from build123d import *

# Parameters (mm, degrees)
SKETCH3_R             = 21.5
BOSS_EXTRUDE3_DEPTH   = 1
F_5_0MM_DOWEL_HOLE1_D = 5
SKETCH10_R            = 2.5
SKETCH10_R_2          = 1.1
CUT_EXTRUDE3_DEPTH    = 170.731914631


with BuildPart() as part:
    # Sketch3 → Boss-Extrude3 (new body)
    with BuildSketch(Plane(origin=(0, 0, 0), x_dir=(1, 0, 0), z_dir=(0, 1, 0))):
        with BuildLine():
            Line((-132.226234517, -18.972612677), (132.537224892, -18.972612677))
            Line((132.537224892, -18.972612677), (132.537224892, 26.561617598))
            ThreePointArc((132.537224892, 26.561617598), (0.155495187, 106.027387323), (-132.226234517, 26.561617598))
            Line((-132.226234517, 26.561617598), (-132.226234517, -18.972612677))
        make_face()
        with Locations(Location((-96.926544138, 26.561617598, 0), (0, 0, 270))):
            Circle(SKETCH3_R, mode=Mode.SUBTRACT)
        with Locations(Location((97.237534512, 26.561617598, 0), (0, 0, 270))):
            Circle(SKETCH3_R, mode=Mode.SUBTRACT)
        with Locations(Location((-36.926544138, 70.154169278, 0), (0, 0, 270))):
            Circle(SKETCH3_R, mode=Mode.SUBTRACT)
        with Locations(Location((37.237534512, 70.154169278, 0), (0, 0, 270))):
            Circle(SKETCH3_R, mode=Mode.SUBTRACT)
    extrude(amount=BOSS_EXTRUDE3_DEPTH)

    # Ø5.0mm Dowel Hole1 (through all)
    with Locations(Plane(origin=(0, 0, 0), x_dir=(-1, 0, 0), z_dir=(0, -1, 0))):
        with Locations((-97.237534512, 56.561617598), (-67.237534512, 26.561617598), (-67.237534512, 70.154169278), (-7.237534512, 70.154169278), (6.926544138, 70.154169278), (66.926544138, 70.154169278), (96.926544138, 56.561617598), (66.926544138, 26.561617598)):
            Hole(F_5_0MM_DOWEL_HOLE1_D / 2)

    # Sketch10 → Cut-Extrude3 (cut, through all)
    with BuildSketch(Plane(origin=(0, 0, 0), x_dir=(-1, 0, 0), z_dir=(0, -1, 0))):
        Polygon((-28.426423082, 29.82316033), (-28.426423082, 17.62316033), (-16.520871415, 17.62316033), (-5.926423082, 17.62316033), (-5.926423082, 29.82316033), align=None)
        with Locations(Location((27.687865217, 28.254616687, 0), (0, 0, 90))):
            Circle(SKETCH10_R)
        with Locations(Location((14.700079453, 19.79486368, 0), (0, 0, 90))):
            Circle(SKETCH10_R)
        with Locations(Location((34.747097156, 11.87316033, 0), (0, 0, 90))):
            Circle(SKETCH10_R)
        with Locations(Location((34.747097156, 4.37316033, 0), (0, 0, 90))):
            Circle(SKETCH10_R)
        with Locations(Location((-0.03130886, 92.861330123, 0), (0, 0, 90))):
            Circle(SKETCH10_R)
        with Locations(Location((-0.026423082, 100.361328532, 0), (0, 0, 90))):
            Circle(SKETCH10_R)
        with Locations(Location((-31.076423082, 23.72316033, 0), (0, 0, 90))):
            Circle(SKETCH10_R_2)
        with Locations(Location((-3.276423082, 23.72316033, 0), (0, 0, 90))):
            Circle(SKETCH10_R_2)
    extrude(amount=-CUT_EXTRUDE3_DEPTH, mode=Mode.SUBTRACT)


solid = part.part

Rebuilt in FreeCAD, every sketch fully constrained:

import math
import FreeCAD as App
import Part
import Sketcher
Q = App.Units.Quantity

doc = App.newDocument("Part")
params = doc.addObject("Spreadsheet::Sheet", "Params")
for row, (alias, value) in enumerate([
    ("sketch1_diameter", "43 mm"),
    ("sketch1_radius", "150 mm"),
    ("pad1_length", "1 mm"),
    ("sketch2_diameter", "5 mm"),
    ("hole_diameter", "5 mm"),
    ("sketch3_diameter", "5 mm"),
    ("sketch3_diameter2", "2.2 mm"),
    ("sketch3_width", "22.5 mm"),
    ("sketch3_height", "12.2 mm"),
], start=1):
    params.set(f"A{row}", alias)
    params.set(f"B{row}", "=" + value)
    params.setAlias(f"B{row}", alias)

body = doc.addObject("PartDesign::Body", "Body")

# Sketch on XZ plane
sketch1 = body.newObject("Sketcher::SketchObject", "Sketch")
sketch1.AttachmentSupport = (doc.getObject("XZ_Plane"), [""])
sketch1.MapMode = "FlatFace"
sketch1.addGeometry(Part.LineSegment(App.Vector(-132, 19, 0), App.Vector(133, 19, 0)), False)
sketch1.addGeometry(Part.LineSegment(App.Vector(133, 19, 0), App.Vector(133, -27, 0)), False)
sketch1.addGeometry(Part.ArcOfCircle(Part.Circle(App.Vector(0, 44, 0), App.Vector(0, 0, 1), 150), math.radians(-152), math.radians(-28)), False)
sketch1.addGeometry(Part.LineSegment(App.Vector(-132, -27, 0), App.Vector(-132, 19, 0)), False)
sketch1.addGeometry(Part.Circle(App.Vector(-97, -27, 0), App.Vector(0, 0, 1), 22), False)
sketch1.addGeometry(Part.Circle(App.Vector(97, -27, 0), App.Vector(0, 0, 1), 22), False)
sketch1.addGeometry(Part.Circle(App.Vector(-37, -70, 0), App.Vector(0, 0, 1), 22), False)
sketch1.addGeometry(Part.Circle(App.Vector(37, -70, 0), App.Vector(0, 0, 1), 22), False)
sketch1.addConstraint(Sketcher.Constraint("Coincident", 0, 2, 1, 1))
sketch1.addConstraint(Sketcher.Constraint("Coincident", 1, 2, 2, 2))
sketch1.addConstraint(Sketcher.Constraint("Coincident", 2, 1, 3, 1))
sketch1.addConstraint(Sketcher.Constraint("Coincident", 3, 2, 0, 1))
sketch1.addConstraint(Sketcher.Constraint("Horizontal", 0))
sketch1.addConstraint(Sketcher.Constraint("Vertical", 1))
sketch1.addConstraint(Sketcher.Constraint("Vertical", 3))
sketch1.addConstraint(Sketcher.Constraint("Equal", 4, 5))
sketch1.addConstraint(Sketcher.Constraint("Equal", 5, 6))
sketch1.addConstraint(Sketcher.Constraint("Equal", 6, 7))
sketch1.addConstraint(Sketcher.Constraint("Horizontal", 4, 3, 5, 3))
sketch1.addConstraint(Sketcher.Constraint("Horizontal", 6, 3, 7, 3))
sketch1.addConstraint(Sketcher.Constraint("Horizontal", 5, 3, 1, 2))
sketch1.addConstraint(Sketcher.Constraint("Horizontal", 1, 2, 2, 1))
sketch1.addConstraint(Sketcher.Constraint("Diameter", 4, Q("43 mm")))
sketch1.addConstraint(Sketcher.Constraint("Radius", 2, Q("150 mm")))
sketch1.addConstraint(Sketcher.Constraint("DistanceX", 4, 3, 6, 3, Q("60 mm")))
sketch1.addConstraint(Sketcher.Constraint("DistanceX", 7, 3, 5, 3, Q("60 mm")))
sketch1.addConstraint(Sketcher.Constraint("DistanceY", 0, 2, 2, 3, Q("25 mm")))
sketch1.addConstraint(Sketcher.Constraint("DistanceX", 0, 1, 0, 2, Q("264.763459 mm")))
sketch1.addConstraint(Sketcher.Constraint("DistanceY", 6, 3, -1, 1, Q("70.154169 mm")))
sketch1.addConstraint(Sketcher.Constraint("DistanceX", 4, 3, 2, 3, Q("97.082039 mm")))
sketch1.addConstraint(Sketcher.Constraint("DistanceX", 2, 3, 5, 3, Q("97.082039 mm")))
sketch1.addConstraint(Sketcher.Constraint("DistanceY", 6, 3, 4, 3, Q("43.592552 mm")))
sketch1.addConstraint(Sketcher.Constraint("DistanceX", -1, 1, 2, 3, Q("0.155495 mm")))
sketch1.setExpression("Constraints[14]", "Params.sketch1_diameter")
sketch1.setExpression("Constraints[15]", "Params.sketch1_radius")
pad1 = body.newObject("PartDesign::Pad", "Pad")
pad1.Profile = sketch1
pad1.setExpression("Length", "Params.pad1_length")
pad1.Reversed = True

# Sketch on XZ plane
sketch2 = body.newObject("Sketcher::SketchObject", "Sketch001")
sketch2.AttachmentSupport = (doc.getObject("XZ_Plane"), [""])
sketch2.MapMode = "FlatFace"
sketch2.addGeometry(Part.Circle(App.Vector(97.2, -56.6, 0), App.Vector(0, 0, 1), 2.5), False)
sketch2.addGeometry(Part.Circle(App.Vector(67.2, -26.6, 0), App.Vector(0, 0, 1), 2.5), False)
sketch2.addGeometry(Part.Circle(App.Vector(67.2, -70.2, 0), App.Vector(0, 0, 1), 2.5), False)
sketch2.addGeometry(Part.Circle(App.Vector(7.2, -70.2, 0), App.Vector(0, 0, 1), 2.5), False)
sketch2.addGeometry(Part.Circle(App.Vector(-6.9, -70.2, 0), App.Vector(0, 0, 1), 2.5), False)
sketch2.addGeometry(Part.Circle(App.Vector(-66.9, -70.2, 0), App.Vector(0, 0, 1), 2.5), False)
sketch2.addGeometry(Part.Circle(App.Vector(-96.9, -56.6, 0), App.Vector(0, 0, 1), 2.5), False)
sketch2.addGeometry(Part.Circle(App.Vector(-66.9, -26.6, 0), App.Vector(0, 0, 1), 2.5), False)
sketch2.addConstraint(Sketcher.Constraint("Equal", 0, 1))
sketch2.addConstraint(Sketcher.Constraint("Equal", 1, 2))
sketch2.addConstraint(Sketcher.Constraint("Equal", 2, 3))
sketch2.addConstraint(Sketcher.Constraint("Equal", 3, 4))
sketch2.addConstraint(Sketcher.Constraint("Equal", 4, 5))
sketch2.addConstraint(Sketcher.Constraint("Equal", 5, 6))
sketch2.addConstraint(Sketcher.Constraint("Equal", 6, 7))
sketch2.addConstraint(Sketcher.Constraint("Horizontal", 2, 3, 3, 3))
sketch2.addConstraint(Sketcher.Constraint("Horizontal", 3, 3, 4, 3))
sketch2.addConstraint(Sketcher.Constraint("Horizontal", 4, 3, 5, 3))
sketch2.addConstraint(Sketcher.Constraint("Horizontal", 0, 3, 6, 3))
sketch2.addConstraint(Sketcher.Constraint("Horizontal", 1, 3, 7, 3))
sketch2.addConstraint(Sketcher.Constraint("Vertical", 1, 3, 2, 3))
sketch2.addConstraint(Sketcher.Constraint("Vertical", 5, 3, 7, 3))
sketch2.addConstraint(Sketcher.Constraint("Diameter", 0, Q("5 mm")))
sketch2.addConstraint(Sketcher.Constraint("DistanceX", 1, 3, 0, 3, Q("30 mm")))
sketch2.addConstraint(Sketcher.Constraint("DistanceY", 0, 3, 1, 3, Q("30 mm")))
sketch2.addConstraint(Sketcher.Constraint("DistanceX", 3, 3, 2, 3, Q("60 mm")))
sketch2.addConstraint(Sketcher.Constraint("DistanceX", 5, 3, 4, 3, Q("60 mm")))
sketch2.addConstraint(Sketcher.Constraint("DistanceX", 6, 3, 5, 3, Q("30 mm")))
sketch2.addConstraint(Sketcher.Constraint("DistanceY", 2, 3, -1, 1, Q("70.154169 mm")))
sketch2.addConstraint(Sketcher.Constraint("DistanceY", 2, 3, 0, 3, Q("13.592552 mm")))
sketch2.addConstraint(Sketcher.Constraint("DistanceX", 4, 3, 3, 3, Q("14.164079 mm")))
sketch2.addConstraint(Sketcher.Constraint("DistanceX", -1, 1, 0, 3, Q("97.237535 mm")))
sketch2.setExpression("Constraints[14]", "Params.sketch2_diameter")
doc.recompute()
hole = body.newObject("PartDesign::Hole", "Hole")
hole.Profile = sketch2
hole.ThreadType = "None"
hole.setExpression("Diameter", "Params.hole_diameter")
hole.DepthType = "ThroughAll"

# Sketch on XZ plane
sketch3 = body.newObject("Sketcher::SketchObject", "Sketch002")
sketch3.AttachmentSupport = (doc.getObject("XZ_Plane"), [""])
sketch3.MapMode = "FlatFace"
sketch3.addGeometry(Part.LineSegment(App.Vector(28.4, -29.8, 0), App.Vector(28.4, -17.6, 0)), False)
sketch3.addGeometry(Part.LineSegment(App.Vector(28.4, -17.6, 0), App.Vector(5.9, -17.6, 0)), False)
sketch3.addGeometry(Part.LineSegment(App.Vector(5.9, -17.6, 0), App.Vector(5.9, -29.8, 0)), False)
sketch3.addGeometry(Part.LineSegment(App.Vector(5.9, -29.8, 0), App.Vector(28.4, -29.8, 0)), False)
sketch3.addGeometry(Part.Circle(App.Vector(-27.7, -28.3, 0), App.Vector(0, 0, 1), 2.5), False)
sketch3.addGeometry(Part.Circle(App.Vector(-14.7, -19.8, 0), App.Vector(0, 0, 1), 2.5), False)
sketch3.addGeometry(Part.Circle(App.Vector(-34.7, -11.9, 0), App.Vector(0, 0, 1), 2.5), False)
sketch3.addGeometry(Part.Circle(App.Vector(-34.7, -4.4, 0), App.Vector(0, 0, 1), 2.5), False)
sketch3.addGeometry(Part.Circle(App.Vector(0, -92.9, 0), App.Vector(0, 0, 1), 2.5), False)
sketch3.addGeometry(Part.Circle(App.Vector(0, -100.4, 0), App.Vector(0, 0, 1), 2.5), False)
sketch3.addGeometry(Part.Circle(App.Vector(31.1, -23.7, 0), App.Vector(0, 0, 1), 1.1), False)
sketch3.addGeometry(Part.Circle(App.Vector(3.3, -23.7, 0), App.Vector(0, 0, 1), 1.1), False)
sketch3.addConstraint(Sketcher.Constraint("Coincident", 0, 2, 1, 1))
sketch3.addConstraint(Sketcher.Constraint("Coincident", 1, 2, 2, 1))
sketch3.addConstraint(Sketcher.Constraint("Coincident", 2, 2, 3, 1))
sketch3.addConstraint(Sketcher.Constraint("Coincident", 3, 2, 0, 1))
sketch3.addConstraint(Sketcher.Constraint("Vertical", 0))
sketch3.addConstraint(Sketcher.Constraint("Horizontal", 1))
sketch3.addConstraint(Sketcher.Constraint("Vertical", 2))
sketch3.addConstraint(Sketcher.Constraint("Horizontal", 3))
sketch3.addConstraint(Sketcher.Constraint("Equal", 4, 5))
sketch3.addConstraint(Sketcher.Constraint("Equal", 5, 6))
sketch3.addConstraint(Sketcher.Constraint("Equal", 6, 7))
sketch3.addConstraint(Sketcher.Constraint("Equal", 7, 8))
sketch3.addConstraint(Sketcher.Constraint("Equal", 8, 9))
sketch3.addConstraint(Sketcher.Constraint("Equal", 10, 11))
sketch3.addConstraint(Sketcher.Constraint("Horizontal", 10, 3, 11, 3))
sketch3.addConstraint(Sketcher.Constraint("Vertical", 6, 3, 7, 3))
sketch3.addConstraint(Sketcher.Constraint("Diameter", 4, Q("5 mm")))
sketch3.addConstraint(Sketcher.Constraint("Diameter", 10, Q("2.2 mm")))
sketch3.addConstraint(Sketcher.Constraint("DistanceX", 1, 2, 1, 1, Q("22.5 mm")))
sketch3.addConstraint(Sketcher.Constraint("DistanceY", 0, 1, 0, 2, Q("12.2 mm")))
sketch3.addConstraint(Sketcher.Constraint("DistanceY", 6, 3, 7, 3, Q("7.5 mm")))
sketch3.addConstraint(Sketcher.Constraint("DistanceY", 9, 3, 8, 3, Q("7.499998 mm")))
sketch3.addConstraint(Sketcher.Constraint("DistanceX", 11, 3, 10, 3, Q("27.8 mm")))
sketch3.addConstraint(Sketcher.Constraint("DistanceY", 10, 3, 0, 2, Q("6.1 mm")))
sketch3.addConstraint(Sketcher.Constraint("DistanceY", 10, 3, 6, 3, Q("11.85 mm")))
sketch3.addConstraint(Sketcher.Constraint("DistanceX", 0, 2, 10, 3, Q("2.65 mm")))
sketch3.addConstraint(Sketcher.Constraint("DistanceX", 5, 3, -1, 1, Q("14.700079 mm")))
sketch3.addConstraint(Sketcher.Constraint("DistanceY", 6, 3, -1, 1, Q("11.87316 mm")))
sketch3.addConstraint(Sketcher.Constraint("DistanceX", -1, 1, 8, 3, Q("0.031309 mm")))
sketch3.addConstraint(Sketcher.Constraint("DistanceY", 8, 3, -1, 1, Q("92.86133 mm")))
sketch3.addConstraint(Sketcher.Constraint("DistanceX", 6, 3, 4, 3, Q("7.059232 mm")))
sketch3.addConstraint(Sketcher.Constraint("DistanceX", 4, 3, 9, 3, Q("27.714288 mm")))
sketch3.addConstraint(Sketcher.Constraint("DistanceY", 9, 3, 4, 3, Q("72.106712 mm")))
sketch3.addConstraint(Sketcher.Constraint("DistanceX", 4, 3, 10, 3, Q("58.764288 mm")))
sketch3.addConstraint(Sketcher.Constraint("DistanceX", 4, 3, -1, 1, Q("27.687865 mm")))
sketch3.addConstraint(Sketcher.Constraint("DistanceY", 5, 3, -1, 1, Q("19.794864 mm")))
sketch3.setExpression("Constraints[16]", "Params.sketch3_diameter")
sketch3.setExpression("Constraints[17]", "Params.sketch3_diameter2")
sketch3.setExpression("Constraints[18]", "Params.sketch3_width")
sketch3.setExpression("Constraints[19]", "Params.sketch3_height")
pocket1 = body.newObject("PartDesign::Pocket", "Pocket")
pocket1.Profile = sketch3
pocket1.Type = "ThroughAll"

doc.recompute()
